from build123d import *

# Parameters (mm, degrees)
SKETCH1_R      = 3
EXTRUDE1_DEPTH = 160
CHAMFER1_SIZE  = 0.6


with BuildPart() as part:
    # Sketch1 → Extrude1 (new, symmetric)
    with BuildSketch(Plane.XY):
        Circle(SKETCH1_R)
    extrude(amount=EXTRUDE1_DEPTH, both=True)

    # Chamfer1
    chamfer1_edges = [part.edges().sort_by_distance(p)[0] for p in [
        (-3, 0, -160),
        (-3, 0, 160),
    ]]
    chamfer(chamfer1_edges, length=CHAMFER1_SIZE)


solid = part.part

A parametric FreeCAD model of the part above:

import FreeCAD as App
import Part
import Sketcher
from FreeCAD import Vector
Q = App.Units.Quantity


def edges_at(feature, points):
    """Names of the edges that pass closest to the given points."""
    edges = feature.Shape.Edges
    near = lambda p: min(range(len(edges)), key=lambda i: edges[i].distToShape(Part.Vertex(*p))[0])
    return sorted({f"Edge{near(p) + 1}" for p in points})

doc = App.newDocument("Part")
params = doc.addObject("Spreadsheet::Sheet", "Params")
for row, (alias, value) in enumerate([
    ("sketch1_diameter", "6 mm"),
    ("pad1_length", "320 mm"),
    ("chamfer_size", "0.6 mm"),
], start=1):
    params.set(f"A{row}", alias)
    params.set(f"B{row}", "=" + value)
    params.setAlias(f"B{row}", alias)

body = doc.addObject("PartDesign::Body", "Body")

sketch1 = body.newObject("Sketcher::SketchObject", "Sketch")
sketch1.AttachmentSupport = (doc.getObject("XY_Plane"), [""])
sketch1.MapMode = "FlatFace"
sketch1.addGeometry(Part.Circle(Vector(0, 0, 0), Vector(0, 0, 1), 3), False)
sketch1.addConstraint([
    Sketcher.Constraint("Coincident", 0, 3, -1, 1),
    Sketcher.Constraint("Diameter", 0, Q("6 mm")),
])
sketch1.setExpression("Constraints[1]", "Params.sketch1_diameter")
pad1 = body.newObject("PartDesign::Pad", "Pad")
pad1.Profile = sketch1
pad1.setExpression("Length", "Params.pad1_length")
pad1.Midplane = True
doc.recompute()

chamfer = body.newObject("PartDesign::Chamfer", "Chamfer")
chamfer.Base = (pad1, edges_at(pad1, [(-3, 0, -160), (-3, 0, 160)]))
chamfer.setExpression("Size", "Params.chamfer_size")

doc.recompute()
